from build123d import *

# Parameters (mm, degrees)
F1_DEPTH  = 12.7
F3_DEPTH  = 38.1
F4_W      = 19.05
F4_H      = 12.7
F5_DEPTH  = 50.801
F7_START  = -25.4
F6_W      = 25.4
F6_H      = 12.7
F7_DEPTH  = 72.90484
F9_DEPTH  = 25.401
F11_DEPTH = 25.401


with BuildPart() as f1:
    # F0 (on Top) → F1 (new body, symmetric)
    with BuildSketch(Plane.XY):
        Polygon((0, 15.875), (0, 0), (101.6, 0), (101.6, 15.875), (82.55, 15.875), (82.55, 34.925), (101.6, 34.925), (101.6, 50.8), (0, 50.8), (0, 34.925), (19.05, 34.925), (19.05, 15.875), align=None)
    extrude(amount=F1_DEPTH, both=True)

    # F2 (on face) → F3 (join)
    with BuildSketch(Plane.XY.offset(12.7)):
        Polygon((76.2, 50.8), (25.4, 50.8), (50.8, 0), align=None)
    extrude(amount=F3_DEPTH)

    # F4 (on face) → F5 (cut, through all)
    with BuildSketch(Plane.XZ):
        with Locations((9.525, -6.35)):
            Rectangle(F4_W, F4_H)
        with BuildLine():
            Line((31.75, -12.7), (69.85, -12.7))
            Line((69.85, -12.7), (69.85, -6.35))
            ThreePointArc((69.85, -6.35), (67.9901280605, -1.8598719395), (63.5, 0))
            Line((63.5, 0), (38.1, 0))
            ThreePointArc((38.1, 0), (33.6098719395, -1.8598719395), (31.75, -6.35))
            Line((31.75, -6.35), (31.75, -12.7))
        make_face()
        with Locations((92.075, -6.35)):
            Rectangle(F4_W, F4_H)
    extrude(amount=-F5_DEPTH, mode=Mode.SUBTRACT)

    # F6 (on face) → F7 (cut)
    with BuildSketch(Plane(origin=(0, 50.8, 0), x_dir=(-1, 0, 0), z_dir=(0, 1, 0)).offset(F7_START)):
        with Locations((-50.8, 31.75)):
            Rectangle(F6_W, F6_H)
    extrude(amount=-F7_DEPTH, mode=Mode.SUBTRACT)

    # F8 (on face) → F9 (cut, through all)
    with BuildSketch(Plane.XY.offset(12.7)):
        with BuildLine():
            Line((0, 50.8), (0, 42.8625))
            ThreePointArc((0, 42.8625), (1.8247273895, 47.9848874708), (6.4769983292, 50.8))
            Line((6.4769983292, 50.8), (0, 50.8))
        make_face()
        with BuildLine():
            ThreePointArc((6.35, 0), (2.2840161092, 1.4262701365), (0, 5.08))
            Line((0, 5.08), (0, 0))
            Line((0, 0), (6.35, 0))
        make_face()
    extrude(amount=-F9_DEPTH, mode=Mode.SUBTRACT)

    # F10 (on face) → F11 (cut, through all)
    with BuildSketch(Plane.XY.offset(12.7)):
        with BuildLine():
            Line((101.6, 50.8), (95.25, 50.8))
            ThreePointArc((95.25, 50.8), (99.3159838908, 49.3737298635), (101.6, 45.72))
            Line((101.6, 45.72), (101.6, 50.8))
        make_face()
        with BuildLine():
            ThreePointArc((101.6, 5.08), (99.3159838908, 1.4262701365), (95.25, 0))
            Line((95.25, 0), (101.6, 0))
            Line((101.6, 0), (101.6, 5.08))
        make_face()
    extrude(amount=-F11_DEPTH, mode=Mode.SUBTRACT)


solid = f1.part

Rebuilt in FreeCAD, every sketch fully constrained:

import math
import FreeCAD as App
import Part
import Sketcher

V = App.Vector
Q = App.Units.Quantity


def add_polygon(sketch, points):
    """Adds a closed chain of lines whose ends are joined by coincident constraints."""
    first, n = sketch.GeometryCount, len(points)
    for a, b in zip(points, points[1:] + points[:1]):
        sketch.addGeometry(Part.LineSegment(App.Vector(*a, 0), App.Vector(*b, 0)), False)
    for i in range(n):
        sketch.addConstraint(Sketcher.Constraint("Coincident", first + i, 2, first + (i + 1) % n, 1))

doc = App.newDocument("Part")
body = doc.addObject("PartDesign::Body", "Body")

sketch1 = body.newObject("Sketcher::SketchObject", "Sketch")
sketch1.AttachmentSupport = (doc.getObject("XY_Plane"), [""])
sketch1.MapMode = "FlatFace"
add_polygon(sketch1, [(0, 16), (0, 0), (102, 0), (102, 16), (83, 16), (83, 35), (102, 35), (102, 51), (0, 51), (0, 35), (19, 35), (19, 16)])
sketch1.addConstraint([
    Sketcher.Constraint("Vertical", 0),
    Sketcher.Constraint("Horizontal", 1),
    Sketcher.Constraint("Vertical", 2),
    Sketcher.Constraint("Horizontal", 3),
    Sketcher.Constraint("Vertical", 4),
    Sketcher.Constraint("Horizontal", 5),
    Sketcher.Constraint("Vertical", 6),
    Sketcher.Constraint("Horizontal", 7),
    Sketcher.Constraint("Vertical", 8),
    Sketcher.Constraint("Horizontal", 9),
    Sketcher.Constraint("Vertical", 10),
    Sketcher.Constraint("Horizontal", 11),
    Sketcher.Constraint("Coincident", 0, 2, -1, 1),
    Sketcher.Constraint("PointOnObject", 7, 2, -2),
    Sketcher.Constraint("Horizontal", 5, 2, 8, 2),
    Sketcher.Constraint("Horizontal", 3, 2, 10, 2),
    Sketcher.Constraint("Vertical", 2, 2, 5, 2),
    Sketcher.Constraint("Equal", 5, 9),
    Sketcher.Constraint("Equal", 11, 4),
    Sketcher.Constraint("Equal", 2, 6),
    Sketcher.Constraint("DistanceX", 1, 1, 1, 2, Q("4 in")),
    Sketcher.Constraint("DistanceY", -1, 1, 6, 2, Q("2 in")),
    Sketcher.Constraint("DistanceX", 3, 2, 3, 1, Q("0.75 in")),
])
pad1 = body.newObject("PartDesign::Pad", "Pad")
pad1.Profile = sketch1
pad1.Length = Q("1 in")
pad1.Midplane = True

sketch2 = body.newObject("Sketcher::SketchObject", "Sketch001")
sketch2.AttachmentSupport = (doc.getObject("XY_Plane"), [""])
sketch2.MapMode = "FlatFace"
sketch2.AttachmentOffset = App.Placement(V(0, 0, 0.5 * 25.4), App.Rotation())
add_polygon(sketch2, [(76, 51), (25, 51), (51, 0)])
sketch2.addConstraint([
    Sketcher.Constraint("Horizontal", 0),
    Sketcher.Constraint("PointOnObject", 1, 2, -1),
    Sketcher.Constraint("Equal", 1, 2),
    Sketcher.Constraint("DistanceX", 0, 2, 0, 1, Q("2 in")),
    Sketcher.Constraint("DistanceX", -1, 1, 0, 2, Q("1 in")),
    Sketcher.Constraint("DistanceY", -1, 1, 0, 2, Q("2 in")),
])
pad2 = body.newObject("PartDesign::Pad", "Pad001")
pad2.Profile = sketch2
pad2.Length = Q("1.5 in")

sketch3 = body.newObject("Sketcher::SketchObject", "Sketch002")
sketch3.AttachmentSupport = (doc.getObject("XZ_Plane"), [""])
sketch3.MapMode = "FlatFace"
add_polygon(sketch3, [(0, 0), (0, -13), (19, -13), (19, 0)])
sketch3.addGeometry(Part.LineSegment(V(32, -13, 0), V(70, -13, 0)), False)
sketch3.addGeometry(Part.LineSegment(V(70, -13, 0), V(70, -6, 0)), False)
sketch3.addGeometry(Part.ArcOfCircle(Part.Circle(V(64, -6, 0), V(0, 0, 1), 6), math.radians(0), math.radians(90)), False)
sketch3.addGeometry(Part.LineSegment(V(64, 0, 0), V(38, 0, 0)), False)
sketch3.addGeometry(Part.ArcOfCircle(Part.Circle(V(38, -6, 0), V(0, 0, 1), 6), math.radians(90), math.radians(180)), False)
sketch3.addGeometry(Part.LineSegment(V(32, -6, 0), V(32, -13, 0)), False)
add_polygon(sketch3, [(83, 0), (83, -13), (102, -13), (102, 0)])
sketch3.addConstraint([
    Sketcher.Constraint("Coincident", 4, 2, 5, 1),
    Sketcher.Constraint("Tangent", 5, 2, 6, 1),
    Sketcher.Constraint("Tangent", 6, 2, 7, 1),
    Sketcher.Constraint("Tangent", 7, 2, 8, 1),
    Sketcher.Constraint("Tangent", 8, 2, 9, 1),
    Sketcher.Constraint("Coincident", 9, 2, 4, 1),
    Sketcher.Constraint("Vertical", 0),
    Sketcher.Constraint("Horizontal", 1),
    Sketcher.Constraint("Vertical", 2),
    Sketcher.Constraint("Horizontal", 3),
    Sketcher.Constraint("Horizontal", 4),
    Sketcher.Constraint("Vertical", 5),
    Sketcher.Constraint("Horizontal", 7),
    Sketcher.Constraint("Vertical", 9),
    Sketcher.Constraint("Vertical", 10),
    Sketcher.Constraint("Horizontal", 11),
    Sketcher.Constraint("Vertical", 12),
    Sketcher.Constraint("Horizontal", 13),
    Sketcher.Constraint("Coincident", 3, 2, -1, 1),
    Sketcher.Constraint("Equal", 6, 8),
    Sketcher.Constraint("PointOnObject", 6, 2, -1),
    Sketcher.Constraint("PointOnObject", 12, 2, -1),
    Sketcher.Constraint("Horizontal", 1, 2, 4, 2),
    Sketcher.Constraint("Horizontal", 9, 2, 10, 2),
    Sketcher.Constraint("Equal", 3, 11),
    Sketcher.Constraint("DistanceX", 7, 2, 7, 1, Q("1 in")),
    Sketcher.Constraint("Radius", 6, Q("0.25 in")),
    Sketcher.Constraint("DistanceY", 0, 2, 0, 1, Q("0.5 in")),
    Sketcher.Constraint("DistanceX", -1, 1, 11, 2, Q("4 in")),
    Sketcher.Constraint("DistanceX", 1, 2, 4, 2, Q("2 in")),
    Sketcher.Constraint("DistanceX", 1, 1, 1, 2, Q("0.75 in")),
])
pocket1 = body.newObject("PartDesign::Pocket", "Pocket")
pocket1.Profile = sketch3
pocket1.Type = "ThroughAll"

sketch4 = body.newObject("Sketcher::SketchObject", "Sketch003")
sketch4.AttachmentSupport = (doc.getObject("XZ_Plane"), [""])
sketch4.MapMode = "FlatFace"
sketch4.AttachmentOffset = App.Placement(V(0, 0, -1 * 25.4), App.Rotation())
add_polygon(sketch4, [(64, 38), (64, 25), (38, 25), (38, 38)])
sketch4.addConstraint([
    Sketcher.Constraint("Vertical", 0),
    Sketcher.Constraint("Horizontal", 1),
    Sketcher.Constraint("Vertical", 2),
    Sketcher.Constraint("Horizontal", 3),
    Sketcher.Constraint("DistanceX", 1, 2, 1, 1, Q("1 in")),
    Sketcher.Constraint("DistanceY", 0, 2, 0, 1, Q("0.5 in")),
    Sketcher.Constraint("DistanceY", -1, 1, 0, 2, Q("1 in")),
    Sketcher.Constraint("DistanceX", -1, 1, 0, 2, Q("2.5 in")),
])
pocket2 = body.newObject("PartDesign::Pocket", "Pocket001")
pocket2.Profile = sketch4
pocket2.Length = 72.90484
pocket2.Reversed = True

sketch5 = body.newObject("Sketcher::SketchObject", "Sketch004")
sketch5.AttachmentSupport = (doc.getObject("XY_Plane"), [""])
sketch5.MapMode = "FlatFace"
sketch5.AttachmentOffset = App.Placement(V(0, 0, 0.5 * 25.4), App.Rotation())
sketch5.addGeometry([
    Part.LineSegment(V(0, 51, 0), V(0, 43, 0)),
    Part.ArcOfCircle(Part.Circle(V(8, 43, 0), V(0, 0, 1), 8), math.radians(102), math.radians(180)),
    Part.LineSegment(V(6, 51, 0), V(0, 51, 0)),
    Part.ArcOfCircle(Part.Circle(V(6, 7, 0), V(0, 0, 1), 7), math.radians(-167), math.radians(-90)),
    Part.LineSegment(V(0, 5, 0), V(0, 0, 0)),
    Part.LineSegment(V(0, 0, 0), V(6, 0, 0)),
], False)
sketch5.addConstraint([
    Sketcher.Constraint("Tangent", 0, 2, 1, 2),
    Sketcher.Constraint("Coincident", 1, 1, 2, 1),
    Sketcher.Constraint("Coincident", 2, 2, 0, 1),
    Sketcher.Constraint("Coincident", 3, 1, 4, 1),
    Sketcher.Constraint("Coincident", 4, 2, 5, 1),
    Sketcher.Constraint("Tangent", 5, 2, 3, 2),
    Sketcher.Constraint("Vertical", 0),
    Sketcher.Constraint("Horizontal", 2),
    Sketcher.Constraint("Vertical", 4),
    Sketcher.Constraint("Horizontal", 5),
    Sketcher.Constraint("Coincident", 4, 2, -1, 1),
    Sketcher.Constraint("PointOnObject", 0, 2, -2),
    Sketcher.Constraint("DistanceY", 4, 2, 4, 1, Q("0.2 in")),
    Sketcher.Constraint("DistanceY", -1, 1, 1, 1, Q("2 in")),
    Sketcher.Constraint("DistanceX", 5, 1, 5, 2, Q("0.25 in")),
    Sketcher.Constraint("DistanceX", 2, 2, 2, 1, Q("0.2549999 in")),
    Sketcher.Constraint("DistanceY", 0, 2, 0, 1, Q("0.3125 in")),
])
pocket3 = body.newObject("PartDesign::Pocket", "Pocket002")
pocket3.Profile = sketch5
pocket3.Type = "ThroughAll"

sketch6 = body.newObject("Sketcher::SketchObject", "Sketch005")
sketch6.AttachmentSupport = (doc.getObject("XY_Plane"), [""])
sketch6.MapMode = "FlatFace"
sketch6.AttachmentOffset = App.Placement(V(0, 0, 0.5 * 25.4), App.Rotation())
sketch6.addGeometry([
    Part.LineSegment(V(102, 51, 0), V(95, 51, 0)),
    Part.ArcOfCircle(Part.Circle(V(95, 44, 0), V(0, 0, 1), 7), math.radians(13), math.radians(90)),
    Part.LineSegment(V(102, 46, 0), V(102, 51, 0)),
    Part.ArcOfCircle(Part.Circle(V(95, 7, 0), V(0, 0, 1), 7), math.radians(-90), math.radians(-13)),
    Part.LineSegment(V(95, 0, 0), V(102, 0, 0)),
    Part.LineSegment(V(102, 0, 0), V(102, 5, 0)),
], False)
sketch6.addConstraint([
    Sketcher.Constraint("Tangent", 0, 2, 1, 2),
    Sketcher.Constraint("Coincident", 1, 1, 2, 1),
    Sketcher.Constraint("Coincident", 2, 2, 0, 1),
    Sketcher.Constraint("Tangent", 3, 1, 4, 1),
    Sketcher.Constraint("Coincident", 4, 2, 5, 1),
    Sketcher.Constraint("Coincident", 5, 2, 3, 2),
    Sketcher.Constraint("Horizontal", 0),
    Sketcher.Constraint("Vertical", 2),
    Sketcher.Constraint("Horizontal", 4),
    Sketcher.Constraint("Vertical", 5),
    Sketcher.Constraint("Equal", 1, 3),
    Sketcher.Constraint("PointOnObject", 3, 1, -1),
    Sketcher.Constraint("Vertical", 1, 3, 3, 3),
    Sketcher.Constraint("Vertical", 2, 2, 4, 2),
    Sketcher.Constraint("DistanceY", 2, 1, 2, 2, Q("0.2 in")),
    Sketcher.Constraint("DistanceY", -1, 1, 0, 2, Q("2 in")),
    Sketcher.Constraint("DistanceX", -1, 1, 1, 1, Q("4 in")),
    Sketcher.Constraint("DistanceX", 0, 2, 0, 1, Q("0.25 in")),
])
pocket4 = body.newObject("PartDesign::Pocket", "Pocket003")
pocket4.Profile = sketch6
pocket4.Type = "ThroughAll"

doc.recompute()
